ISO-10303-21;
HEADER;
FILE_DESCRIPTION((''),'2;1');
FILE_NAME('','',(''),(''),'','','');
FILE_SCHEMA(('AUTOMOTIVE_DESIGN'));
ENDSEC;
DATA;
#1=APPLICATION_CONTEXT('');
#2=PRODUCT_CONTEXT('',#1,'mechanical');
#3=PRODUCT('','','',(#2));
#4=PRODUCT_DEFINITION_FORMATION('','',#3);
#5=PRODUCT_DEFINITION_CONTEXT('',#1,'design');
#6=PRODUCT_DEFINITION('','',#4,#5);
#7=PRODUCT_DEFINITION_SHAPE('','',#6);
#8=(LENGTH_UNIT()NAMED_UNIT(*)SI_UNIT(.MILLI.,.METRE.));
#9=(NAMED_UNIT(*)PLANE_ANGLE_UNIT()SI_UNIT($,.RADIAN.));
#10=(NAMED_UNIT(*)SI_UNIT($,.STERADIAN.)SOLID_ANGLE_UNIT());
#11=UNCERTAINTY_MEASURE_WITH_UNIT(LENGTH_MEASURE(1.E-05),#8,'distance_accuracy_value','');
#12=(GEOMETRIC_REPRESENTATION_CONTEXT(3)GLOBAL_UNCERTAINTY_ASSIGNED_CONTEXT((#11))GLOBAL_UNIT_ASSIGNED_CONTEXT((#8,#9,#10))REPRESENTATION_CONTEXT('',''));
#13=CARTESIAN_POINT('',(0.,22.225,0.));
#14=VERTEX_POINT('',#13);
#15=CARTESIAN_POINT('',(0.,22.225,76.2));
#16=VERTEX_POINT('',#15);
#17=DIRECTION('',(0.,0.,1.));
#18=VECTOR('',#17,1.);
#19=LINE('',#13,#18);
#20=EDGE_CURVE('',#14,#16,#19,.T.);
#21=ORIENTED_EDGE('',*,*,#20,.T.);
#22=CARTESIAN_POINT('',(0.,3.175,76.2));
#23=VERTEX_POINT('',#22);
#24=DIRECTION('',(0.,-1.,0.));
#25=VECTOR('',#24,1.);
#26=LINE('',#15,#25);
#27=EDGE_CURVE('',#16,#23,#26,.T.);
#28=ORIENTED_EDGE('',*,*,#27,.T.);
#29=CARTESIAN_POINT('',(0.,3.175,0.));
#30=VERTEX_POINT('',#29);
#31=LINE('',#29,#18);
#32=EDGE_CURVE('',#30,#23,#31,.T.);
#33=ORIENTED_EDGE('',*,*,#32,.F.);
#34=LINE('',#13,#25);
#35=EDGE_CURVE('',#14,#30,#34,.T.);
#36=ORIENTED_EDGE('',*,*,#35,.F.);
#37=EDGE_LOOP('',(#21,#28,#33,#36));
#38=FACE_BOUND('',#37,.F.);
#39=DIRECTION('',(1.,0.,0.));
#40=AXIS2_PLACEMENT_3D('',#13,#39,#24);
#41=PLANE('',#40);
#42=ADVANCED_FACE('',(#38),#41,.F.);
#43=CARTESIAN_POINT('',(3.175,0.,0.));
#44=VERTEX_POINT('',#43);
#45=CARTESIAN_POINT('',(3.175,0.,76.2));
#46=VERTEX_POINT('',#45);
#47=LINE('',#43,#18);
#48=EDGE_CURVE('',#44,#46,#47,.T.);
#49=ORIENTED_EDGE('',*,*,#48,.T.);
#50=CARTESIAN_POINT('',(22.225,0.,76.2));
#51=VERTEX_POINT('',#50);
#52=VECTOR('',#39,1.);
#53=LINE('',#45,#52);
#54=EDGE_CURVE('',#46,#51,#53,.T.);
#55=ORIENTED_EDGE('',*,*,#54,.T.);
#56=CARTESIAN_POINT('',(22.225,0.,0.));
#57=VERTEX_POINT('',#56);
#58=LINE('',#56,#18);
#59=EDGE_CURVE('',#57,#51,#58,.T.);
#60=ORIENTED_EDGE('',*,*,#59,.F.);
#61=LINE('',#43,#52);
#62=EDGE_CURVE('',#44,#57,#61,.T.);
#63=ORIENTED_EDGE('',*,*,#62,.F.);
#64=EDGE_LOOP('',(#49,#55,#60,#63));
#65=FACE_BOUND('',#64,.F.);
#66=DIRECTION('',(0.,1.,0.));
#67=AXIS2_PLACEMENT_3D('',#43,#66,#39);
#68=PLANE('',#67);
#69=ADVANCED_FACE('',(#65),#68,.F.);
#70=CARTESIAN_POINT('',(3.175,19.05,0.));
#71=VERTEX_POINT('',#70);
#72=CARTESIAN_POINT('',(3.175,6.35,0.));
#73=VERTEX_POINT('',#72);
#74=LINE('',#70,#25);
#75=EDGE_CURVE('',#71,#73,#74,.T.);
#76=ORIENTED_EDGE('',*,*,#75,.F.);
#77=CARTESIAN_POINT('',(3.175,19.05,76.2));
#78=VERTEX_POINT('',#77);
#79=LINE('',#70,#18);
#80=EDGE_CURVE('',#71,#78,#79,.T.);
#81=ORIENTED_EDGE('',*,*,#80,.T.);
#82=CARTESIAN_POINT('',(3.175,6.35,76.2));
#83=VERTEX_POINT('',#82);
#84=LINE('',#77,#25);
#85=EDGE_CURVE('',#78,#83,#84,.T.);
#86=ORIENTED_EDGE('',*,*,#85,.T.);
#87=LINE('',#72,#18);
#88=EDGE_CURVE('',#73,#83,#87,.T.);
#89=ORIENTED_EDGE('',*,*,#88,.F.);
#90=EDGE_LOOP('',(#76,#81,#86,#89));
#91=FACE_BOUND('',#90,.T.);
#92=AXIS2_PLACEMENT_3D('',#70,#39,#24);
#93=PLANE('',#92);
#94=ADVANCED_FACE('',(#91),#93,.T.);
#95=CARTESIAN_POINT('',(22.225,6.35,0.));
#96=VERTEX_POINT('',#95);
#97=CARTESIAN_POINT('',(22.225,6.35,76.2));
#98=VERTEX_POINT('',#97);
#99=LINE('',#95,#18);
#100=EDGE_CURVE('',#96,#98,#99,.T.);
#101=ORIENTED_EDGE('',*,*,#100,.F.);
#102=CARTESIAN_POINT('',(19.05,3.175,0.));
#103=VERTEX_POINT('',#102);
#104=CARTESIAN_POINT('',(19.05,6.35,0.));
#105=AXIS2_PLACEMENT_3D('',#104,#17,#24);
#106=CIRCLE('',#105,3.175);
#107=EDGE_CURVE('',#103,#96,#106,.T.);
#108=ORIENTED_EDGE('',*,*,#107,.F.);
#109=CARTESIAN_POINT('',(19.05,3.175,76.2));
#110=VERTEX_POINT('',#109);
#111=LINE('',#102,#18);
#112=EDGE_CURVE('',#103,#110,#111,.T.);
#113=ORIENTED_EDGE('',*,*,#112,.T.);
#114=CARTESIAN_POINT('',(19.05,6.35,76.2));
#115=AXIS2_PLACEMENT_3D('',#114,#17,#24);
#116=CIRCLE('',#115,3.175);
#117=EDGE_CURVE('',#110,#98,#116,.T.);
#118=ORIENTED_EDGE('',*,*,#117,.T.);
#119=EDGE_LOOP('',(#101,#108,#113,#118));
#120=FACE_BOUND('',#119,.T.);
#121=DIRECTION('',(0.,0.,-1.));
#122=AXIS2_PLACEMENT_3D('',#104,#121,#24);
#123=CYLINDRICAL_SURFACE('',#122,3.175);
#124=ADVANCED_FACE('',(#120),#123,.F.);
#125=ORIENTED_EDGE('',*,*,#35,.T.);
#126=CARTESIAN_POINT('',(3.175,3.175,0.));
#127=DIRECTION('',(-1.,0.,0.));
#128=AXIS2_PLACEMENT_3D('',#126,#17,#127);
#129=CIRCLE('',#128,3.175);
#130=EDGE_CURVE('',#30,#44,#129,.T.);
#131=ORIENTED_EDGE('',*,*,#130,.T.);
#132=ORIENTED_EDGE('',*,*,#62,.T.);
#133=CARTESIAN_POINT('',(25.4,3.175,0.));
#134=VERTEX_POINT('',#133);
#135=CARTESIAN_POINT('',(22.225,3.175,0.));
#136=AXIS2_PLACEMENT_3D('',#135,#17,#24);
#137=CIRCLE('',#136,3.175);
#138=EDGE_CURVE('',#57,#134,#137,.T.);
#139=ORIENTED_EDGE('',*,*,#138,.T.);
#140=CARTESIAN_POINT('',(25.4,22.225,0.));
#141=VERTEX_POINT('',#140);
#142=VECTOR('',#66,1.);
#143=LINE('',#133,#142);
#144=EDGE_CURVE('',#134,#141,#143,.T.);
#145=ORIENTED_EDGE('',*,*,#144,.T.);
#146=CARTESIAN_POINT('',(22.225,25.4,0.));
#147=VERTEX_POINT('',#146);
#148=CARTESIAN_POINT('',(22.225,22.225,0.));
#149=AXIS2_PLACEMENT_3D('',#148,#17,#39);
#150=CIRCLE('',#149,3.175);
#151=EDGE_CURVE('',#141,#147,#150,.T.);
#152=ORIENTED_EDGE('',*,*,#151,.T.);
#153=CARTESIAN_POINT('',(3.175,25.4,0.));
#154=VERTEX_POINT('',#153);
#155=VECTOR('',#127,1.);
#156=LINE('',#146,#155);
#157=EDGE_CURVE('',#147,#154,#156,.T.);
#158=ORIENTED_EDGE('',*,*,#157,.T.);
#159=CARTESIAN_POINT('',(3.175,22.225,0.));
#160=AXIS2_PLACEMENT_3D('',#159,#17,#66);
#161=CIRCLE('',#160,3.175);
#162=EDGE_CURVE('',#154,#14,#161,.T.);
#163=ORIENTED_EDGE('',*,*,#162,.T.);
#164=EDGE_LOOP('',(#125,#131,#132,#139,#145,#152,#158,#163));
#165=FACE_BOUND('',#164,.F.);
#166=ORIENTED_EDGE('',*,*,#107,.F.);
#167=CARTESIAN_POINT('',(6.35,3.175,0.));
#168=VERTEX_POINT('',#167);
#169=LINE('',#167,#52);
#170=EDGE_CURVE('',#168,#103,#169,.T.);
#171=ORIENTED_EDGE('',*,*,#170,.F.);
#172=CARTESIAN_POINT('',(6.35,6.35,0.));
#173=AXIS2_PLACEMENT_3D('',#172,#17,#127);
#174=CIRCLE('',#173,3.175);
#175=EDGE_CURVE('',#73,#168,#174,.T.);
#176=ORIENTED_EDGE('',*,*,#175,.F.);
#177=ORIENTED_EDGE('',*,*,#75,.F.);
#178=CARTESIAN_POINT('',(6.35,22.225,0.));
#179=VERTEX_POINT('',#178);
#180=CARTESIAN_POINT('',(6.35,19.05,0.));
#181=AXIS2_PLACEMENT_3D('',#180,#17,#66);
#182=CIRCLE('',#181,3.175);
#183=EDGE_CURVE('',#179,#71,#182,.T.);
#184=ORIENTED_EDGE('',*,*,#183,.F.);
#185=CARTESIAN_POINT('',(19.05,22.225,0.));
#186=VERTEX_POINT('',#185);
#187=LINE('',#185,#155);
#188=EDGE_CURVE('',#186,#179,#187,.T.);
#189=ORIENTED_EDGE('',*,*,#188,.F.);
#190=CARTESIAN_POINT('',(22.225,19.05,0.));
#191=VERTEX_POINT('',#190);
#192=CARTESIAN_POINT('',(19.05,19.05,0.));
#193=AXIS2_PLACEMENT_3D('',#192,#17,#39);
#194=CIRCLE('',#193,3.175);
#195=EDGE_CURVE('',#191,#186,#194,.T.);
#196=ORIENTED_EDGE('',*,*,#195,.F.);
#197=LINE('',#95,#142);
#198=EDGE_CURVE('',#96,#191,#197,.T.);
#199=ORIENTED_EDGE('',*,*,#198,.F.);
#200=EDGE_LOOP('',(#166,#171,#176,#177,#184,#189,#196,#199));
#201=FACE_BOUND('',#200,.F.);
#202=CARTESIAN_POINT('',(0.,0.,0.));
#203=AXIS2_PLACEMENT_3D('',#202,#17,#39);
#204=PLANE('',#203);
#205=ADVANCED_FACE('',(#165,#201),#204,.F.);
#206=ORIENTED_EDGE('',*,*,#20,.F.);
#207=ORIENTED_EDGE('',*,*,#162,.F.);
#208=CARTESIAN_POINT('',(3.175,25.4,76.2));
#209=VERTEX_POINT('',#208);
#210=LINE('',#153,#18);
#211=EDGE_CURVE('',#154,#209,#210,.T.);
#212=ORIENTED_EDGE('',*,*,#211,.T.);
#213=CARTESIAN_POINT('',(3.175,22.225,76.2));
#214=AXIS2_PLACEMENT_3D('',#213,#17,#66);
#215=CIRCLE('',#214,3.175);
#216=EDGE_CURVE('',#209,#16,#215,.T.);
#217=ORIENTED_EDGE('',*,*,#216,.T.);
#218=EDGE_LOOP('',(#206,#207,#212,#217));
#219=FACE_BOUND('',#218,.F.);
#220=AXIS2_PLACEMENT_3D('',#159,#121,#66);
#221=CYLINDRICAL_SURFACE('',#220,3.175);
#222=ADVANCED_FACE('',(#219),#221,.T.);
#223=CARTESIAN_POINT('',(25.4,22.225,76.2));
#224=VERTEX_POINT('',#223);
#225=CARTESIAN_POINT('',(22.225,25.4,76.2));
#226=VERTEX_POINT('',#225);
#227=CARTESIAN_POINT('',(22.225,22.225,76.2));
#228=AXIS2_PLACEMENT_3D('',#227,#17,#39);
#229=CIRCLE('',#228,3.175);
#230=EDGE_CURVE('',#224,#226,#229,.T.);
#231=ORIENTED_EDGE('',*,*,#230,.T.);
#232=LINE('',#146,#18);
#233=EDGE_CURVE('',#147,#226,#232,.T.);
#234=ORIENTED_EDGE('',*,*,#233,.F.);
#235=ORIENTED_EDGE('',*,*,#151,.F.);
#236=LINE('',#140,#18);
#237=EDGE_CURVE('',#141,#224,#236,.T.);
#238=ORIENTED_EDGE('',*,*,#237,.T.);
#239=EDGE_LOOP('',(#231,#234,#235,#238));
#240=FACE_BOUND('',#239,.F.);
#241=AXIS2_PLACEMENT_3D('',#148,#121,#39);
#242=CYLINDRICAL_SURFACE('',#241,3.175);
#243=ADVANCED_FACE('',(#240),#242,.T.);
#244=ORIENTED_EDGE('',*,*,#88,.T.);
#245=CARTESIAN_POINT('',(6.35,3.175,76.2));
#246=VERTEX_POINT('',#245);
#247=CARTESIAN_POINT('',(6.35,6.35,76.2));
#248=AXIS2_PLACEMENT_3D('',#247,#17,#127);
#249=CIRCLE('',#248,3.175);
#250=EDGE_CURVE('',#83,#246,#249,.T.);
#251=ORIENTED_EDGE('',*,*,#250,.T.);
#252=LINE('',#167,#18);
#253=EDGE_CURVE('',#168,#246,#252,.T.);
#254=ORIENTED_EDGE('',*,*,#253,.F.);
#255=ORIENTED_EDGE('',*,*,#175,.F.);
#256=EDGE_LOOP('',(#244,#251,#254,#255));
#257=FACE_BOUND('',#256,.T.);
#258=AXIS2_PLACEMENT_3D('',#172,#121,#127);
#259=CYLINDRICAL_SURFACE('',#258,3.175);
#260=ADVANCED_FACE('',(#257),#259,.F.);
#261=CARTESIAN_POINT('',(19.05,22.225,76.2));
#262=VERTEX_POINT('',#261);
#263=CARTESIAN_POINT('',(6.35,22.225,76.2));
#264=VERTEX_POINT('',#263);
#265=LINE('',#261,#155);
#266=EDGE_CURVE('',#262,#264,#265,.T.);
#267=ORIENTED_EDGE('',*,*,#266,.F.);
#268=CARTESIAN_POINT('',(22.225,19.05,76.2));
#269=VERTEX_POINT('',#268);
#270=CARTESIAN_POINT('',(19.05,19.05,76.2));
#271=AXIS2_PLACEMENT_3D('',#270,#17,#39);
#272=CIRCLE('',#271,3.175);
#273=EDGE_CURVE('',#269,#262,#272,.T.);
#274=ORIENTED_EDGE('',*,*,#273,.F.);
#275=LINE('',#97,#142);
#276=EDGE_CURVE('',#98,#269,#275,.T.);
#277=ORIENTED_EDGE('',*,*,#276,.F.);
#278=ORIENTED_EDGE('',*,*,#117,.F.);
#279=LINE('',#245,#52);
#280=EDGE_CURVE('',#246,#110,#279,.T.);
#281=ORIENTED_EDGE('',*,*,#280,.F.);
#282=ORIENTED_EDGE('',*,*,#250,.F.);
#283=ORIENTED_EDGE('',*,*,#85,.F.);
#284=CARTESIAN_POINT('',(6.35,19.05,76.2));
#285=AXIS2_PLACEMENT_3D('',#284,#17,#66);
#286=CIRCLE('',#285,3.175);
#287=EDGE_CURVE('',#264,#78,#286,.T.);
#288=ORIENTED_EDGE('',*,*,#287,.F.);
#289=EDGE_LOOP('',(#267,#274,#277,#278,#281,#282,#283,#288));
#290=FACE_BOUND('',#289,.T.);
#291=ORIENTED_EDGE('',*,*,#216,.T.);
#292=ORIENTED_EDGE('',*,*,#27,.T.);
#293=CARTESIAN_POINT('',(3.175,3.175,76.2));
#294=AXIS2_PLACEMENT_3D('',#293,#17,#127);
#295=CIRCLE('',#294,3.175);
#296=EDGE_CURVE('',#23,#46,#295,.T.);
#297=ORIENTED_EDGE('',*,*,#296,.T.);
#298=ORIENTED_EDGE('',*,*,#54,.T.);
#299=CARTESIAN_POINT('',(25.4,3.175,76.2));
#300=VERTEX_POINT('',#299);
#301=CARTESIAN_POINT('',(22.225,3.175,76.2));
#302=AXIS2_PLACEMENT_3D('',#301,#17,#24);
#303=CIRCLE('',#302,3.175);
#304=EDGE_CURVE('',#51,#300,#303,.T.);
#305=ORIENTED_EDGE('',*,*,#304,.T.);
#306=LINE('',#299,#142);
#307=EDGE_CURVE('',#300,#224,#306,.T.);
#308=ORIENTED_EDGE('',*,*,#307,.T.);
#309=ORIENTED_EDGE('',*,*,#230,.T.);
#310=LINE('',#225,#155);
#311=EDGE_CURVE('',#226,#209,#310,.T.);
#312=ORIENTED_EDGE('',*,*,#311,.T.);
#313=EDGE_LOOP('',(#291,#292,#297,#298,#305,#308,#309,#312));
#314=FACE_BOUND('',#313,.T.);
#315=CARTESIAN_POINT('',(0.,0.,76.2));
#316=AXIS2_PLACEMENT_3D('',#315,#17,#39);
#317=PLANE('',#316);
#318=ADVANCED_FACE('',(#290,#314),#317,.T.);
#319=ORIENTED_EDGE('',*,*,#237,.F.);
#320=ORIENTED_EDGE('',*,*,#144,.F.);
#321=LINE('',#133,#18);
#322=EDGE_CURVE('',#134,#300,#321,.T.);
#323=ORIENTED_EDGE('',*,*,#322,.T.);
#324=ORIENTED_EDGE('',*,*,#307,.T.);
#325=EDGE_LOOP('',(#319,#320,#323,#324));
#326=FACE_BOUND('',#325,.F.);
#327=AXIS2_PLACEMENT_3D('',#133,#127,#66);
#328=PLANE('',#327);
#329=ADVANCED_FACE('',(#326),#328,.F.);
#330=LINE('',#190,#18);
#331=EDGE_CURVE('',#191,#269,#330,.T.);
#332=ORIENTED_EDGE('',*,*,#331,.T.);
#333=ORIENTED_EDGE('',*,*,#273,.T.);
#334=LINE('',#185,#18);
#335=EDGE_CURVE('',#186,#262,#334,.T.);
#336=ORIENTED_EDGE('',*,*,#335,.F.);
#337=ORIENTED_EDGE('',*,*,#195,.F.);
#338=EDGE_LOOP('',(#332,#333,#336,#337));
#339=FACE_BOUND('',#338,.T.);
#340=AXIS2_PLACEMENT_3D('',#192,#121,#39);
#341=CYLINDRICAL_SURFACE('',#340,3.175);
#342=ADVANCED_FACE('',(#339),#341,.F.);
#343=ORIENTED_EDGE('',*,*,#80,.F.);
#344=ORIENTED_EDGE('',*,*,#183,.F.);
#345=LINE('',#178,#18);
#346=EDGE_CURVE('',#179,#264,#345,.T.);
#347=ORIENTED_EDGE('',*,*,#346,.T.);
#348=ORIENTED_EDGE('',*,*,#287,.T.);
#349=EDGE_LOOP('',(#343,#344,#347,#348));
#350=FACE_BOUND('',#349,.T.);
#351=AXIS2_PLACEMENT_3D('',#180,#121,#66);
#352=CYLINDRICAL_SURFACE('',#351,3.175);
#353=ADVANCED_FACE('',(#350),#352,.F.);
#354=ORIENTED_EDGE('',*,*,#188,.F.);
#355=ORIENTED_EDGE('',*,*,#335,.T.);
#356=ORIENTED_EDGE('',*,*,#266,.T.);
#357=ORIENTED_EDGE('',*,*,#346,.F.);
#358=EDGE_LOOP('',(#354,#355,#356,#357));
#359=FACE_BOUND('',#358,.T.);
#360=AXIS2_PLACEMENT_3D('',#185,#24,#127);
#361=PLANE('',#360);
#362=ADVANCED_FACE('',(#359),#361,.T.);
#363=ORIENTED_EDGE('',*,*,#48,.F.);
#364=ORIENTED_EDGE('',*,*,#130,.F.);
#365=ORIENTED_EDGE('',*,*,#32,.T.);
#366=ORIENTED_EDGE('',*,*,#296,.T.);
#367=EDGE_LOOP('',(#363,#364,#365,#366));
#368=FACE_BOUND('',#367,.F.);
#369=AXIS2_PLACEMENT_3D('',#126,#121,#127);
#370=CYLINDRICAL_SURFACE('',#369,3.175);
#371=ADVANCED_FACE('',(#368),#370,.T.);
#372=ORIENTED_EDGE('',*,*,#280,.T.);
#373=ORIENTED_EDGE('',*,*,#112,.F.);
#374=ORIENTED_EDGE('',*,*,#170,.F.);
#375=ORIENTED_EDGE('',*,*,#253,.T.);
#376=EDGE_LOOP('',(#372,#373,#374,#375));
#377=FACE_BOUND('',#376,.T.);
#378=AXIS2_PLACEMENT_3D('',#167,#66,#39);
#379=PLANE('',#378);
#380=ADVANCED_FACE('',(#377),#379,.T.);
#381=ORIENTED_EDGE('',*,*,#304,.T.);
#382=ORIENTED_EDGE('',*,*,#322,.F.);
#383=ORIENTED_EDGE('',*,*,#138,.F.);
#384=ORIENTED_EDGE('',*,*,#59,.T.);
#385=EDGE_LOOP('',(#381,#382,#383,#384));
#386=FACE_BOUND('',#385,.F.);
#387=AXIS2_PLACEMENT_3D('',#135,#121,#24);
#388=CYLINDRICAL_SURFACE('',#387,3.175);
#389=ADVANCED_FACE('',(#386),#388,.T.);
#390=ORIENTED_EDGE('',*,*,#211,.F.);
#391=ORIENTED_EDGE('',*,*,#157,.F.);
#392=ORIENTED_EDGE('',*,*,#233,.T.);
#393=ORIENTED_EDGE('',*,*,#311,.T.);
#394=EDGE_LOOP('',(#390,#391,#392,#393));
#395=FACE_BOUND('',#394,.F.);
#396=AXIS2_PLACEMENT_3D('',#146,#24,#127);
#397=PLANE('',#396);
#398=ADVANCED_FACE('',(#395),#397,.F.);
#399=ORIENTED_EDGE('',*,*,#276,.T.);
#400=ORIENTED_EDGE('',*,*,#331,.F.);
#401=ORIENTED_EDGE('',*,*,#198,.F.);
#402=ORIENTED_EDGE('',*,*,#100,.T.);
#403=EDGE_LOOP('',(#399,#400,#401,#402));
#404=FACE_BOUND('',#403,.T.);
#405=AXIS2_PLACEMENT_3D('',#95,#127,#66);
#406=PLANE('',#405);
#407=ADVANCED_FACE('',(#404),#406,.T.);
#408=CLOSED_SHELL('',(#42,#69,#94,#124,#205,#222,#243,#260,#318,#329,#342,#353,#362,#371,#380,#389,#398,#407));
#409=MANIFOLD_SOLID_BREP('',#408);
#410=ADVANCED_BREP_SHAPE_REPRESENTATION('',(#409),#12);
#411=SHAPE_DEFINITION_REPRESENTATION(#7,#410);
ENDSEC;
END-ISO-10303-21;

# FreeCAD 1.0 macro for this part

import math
import FreeCAD as App
import Part
import Sketcher
Q = App.Units.Quantity

doc = App.newDocument("Part")
body = doc.addObject("PartDesign::Body", "Body")

sketch1 = body.newObject("Sketcher::SketchObject", "Sketch")
sketch1.AttachmentSupport = (doc.getObject("XY_Plane"), [""])
sketch1.MapMode = "FlatFace"
sketch1.addGeometry(Part.ArcOfCircle(Part.Circle(App.Vector(3.175, 3.175, 0), App.Vector(0, 0, 1), 3.175), math.radians(180), math.radians(270)), False)
sketch1.addGeometry(Part.LineSegment(App.Vector(3.175, 0, 0), App.Vector(22.225, 0, 0)), False)
sketch1.addGeometry(Part.ArcOfCircle(Part.Circle(App.Vector(22.225, 3.175, 0), App.Vector(0, 0, 1), 3.175), math.radians(-90), math.radians(0)), False)
sketch1.addGeometry(Part.LineSegment(App.Vector(25.4, 3.175, 0), App.Vector(25.4, 22.225, 0)), False)
sketch1.addGeometry(Part.ArcOfCircle(Part.Circle(App.Vector(22.225, 22.225, 0), App.Vector(0, 0, 1), 3.175), math.radians(0), math.radians(90)), False)
sketch1.addGeometry(Part.LineSegment(App.Vector(22.225, 25.4, 0), App.Vector(3.175, 25.4, 0)), False)
sketch1.addGeometry(Part.ArcOfCircle(Part.Circle(App.Vector(3.175, 22.225, 0), App.Vector(0, 0, 1), 3.175), math.radians(90), math.radians(180)), False)
sketch1.addGeometry(Part.LineSegment(App.Vector(0, 22.225, 0), App.Vector(0, 3.175, 0)), False)
sketch1.addGeometry(Part.LineSegment(App.Vector(19.05, 3.175, 0), App.Vector(6.35, 3.175, 0)), False)
sketch1.addGeometry(Part.ArcOfCircle(Part.Circle(App.Vector(6.35, 6.35, 0), App.Vector(0, 0, 1), 3.175), math.radians(180), math.radians(270)), False)
sketch1.addGeometry(Part.LineSegment(App.Vector(3.175, 6.35, 0), App.Vector(3.175, 19.05, 0)), False)
sketch1.addGeometry(Part.ArcOfCircle(Part.Circle(App.Vector(6.35, 19.05, 0), App.Vector(0, 0, 1), 3.175), math.radians(90), math.radians(180)), False)
sketch1.addGeometry(Part.LineSegment(App.Vector(6.35, 22.225, 0), App.Vector(19.05, 22.225, 0)), False)
sketch1.addGeometry(Part.ArcOfCircle(Part.Circle(App.Vector(19.05, 19.05, 0), App.Vector(0, 0, 1), 3.175), math.radians(0), math.radians(90)), False)
sketch1.addGeometry(Part.LineSegment(App.Vector(22.225, 19.05, 0), App.Vector(22.225, 6.35, 0)), False)
sketch1.addGeometry(Part.ArcOfCircle(Part.Circle(App.Vector(19.05, 6.35, 0), App.Vector(0, 0, 1), 3.175), math.radians(-90), math.radians(0)), False)
sketch1.addConstraint(Sketcher.Constraint("Tangent", 0, 2, 1, 1))
sketch1.addConstraint(Sketcher.Constraint("Tangent", 1, 2, 2, 1))
sketch1.addConstraint(Sketcher.Constraint("Tangent", 2, 2, 3, 1))
sketch1.addConstraint(Sketcher.Constraint("Tangent", 3, 2, 4, 1))
sketch1.addConstraint(Sketcher.Constraint("Tangent", 4, 2, 5, 1))
sketch1.addConstraint(Sketcher.Constraint("Tangent", 5, 2, 6, 1))
sketch1.addConstraint(Sketcher.Constraint("Tangent", 6, 2, 7, 1))
sketch1.addConstraint(Sketcher.Constraint("Tangent", 7, 2, 0, 1))
sketch1.addConstraint(Sketcher.Constraint("Tangent", 8, 2, 9, 2))
sketch1.addConstraint(Sketcher.Constraint("Tangent", 9, 1, 10, 1))
sketch1.addConstraint(Sketcher.Constraint("Tangent", 10, 2, 11, 2))
sketch1.addConstraint(Sketcher.Constraint("Tangent", 11, 1, 12, 1))
sketch1.addConstraint(Sketcher.Constraint("Tangent", 12, 2, 13, 2))
sketch1.addConstraint(Sketcher.Constraint("Tangent", 13, 1, 14, 1))
sketch1.addConstraint(Sketcher.Constraint("Tangent", 14, 2, 15, 2))
sketch1.addConstraint(Sketcher.Constraint("Tangent", 15, 1, 8, 1))
sketch1.addConstraint(Sketcher.Constraint("Horizontal", 1))
sketch1.addConstraint(Sketcher.Constraint("Vertical", 3))
sketch1.addConstraint(Sketcher.Constraint("Horizontal", 5))
sketch1.addConstraint(Sketcher.Constraint("Vertical", 7))
sketch1.addConstraint(Sketcher.Constraint("Horizontal", 8))
sketch1.addConstraint(Sketcher.Constraint("Vertical", 10))
sketch1.addConstraint(Sketcher.Constraint("Horizontal", 12))
sketch1.addConstraint(Sketcher.Constraint("Vertical", 14))
sketch1.addConstraint(Sketcher.Constraint("Equal", 0, 2))
sketch1.addConstraint(Sketcher.Constraint("Equal", 2, 4))
sketch1.addConstraint(Sketcher.Constraint("Equal", 4, 6))
sketch1.addConstraint(Sketcher.Constraint("Equal", 6, 9))
sketch1.addConstraint(Sketcher.Constraint("Equal", 9, 11))
sketch1.addConstraint(Sketcher.Constraint("Equal", 11, 13))
sketch1.addConstraint(Sketcher.Constraint("Equal", 13, 15))
sketch1.addConstraint(Sketcher.Constraint("PointOnObject", 0, 2, -1))
sketch1.addConstraint(Sketcher.Constraint("PointOnObject", 6, 2, -2))
sketch1.addConstraint(Sketcher.Constraint("Horizontal", 7, 2, 8, 2))
sketch1.addConstraint(Sketcher.Constraint("Horizontal", 6, 2, 11, 1))
sketch1.addConstraint(Sketcher.Constraint("Vertical", 5, 2, 9, 1))
sketch1.addConstraint(Sketcher.Constraint("Vertical", 4, 2, 13, 1))
sketch1.addConstraint(Sketcher.Constraint("Equal", 5, 3))
sketch1.addConstraint(Sketcher.Constraint("DistanceX", -1, 1, 2, 2, Q("1 in")))
sketch1.addConstraint(Sketcher.Constraint("Radius", 0, Q("0.125 in")))
pad1 = body.newObject("PartDesign::Pad", "Pad")
pad1.Profile = sketch1
pad1.Length = Q("3 in")

doc.recompute()
